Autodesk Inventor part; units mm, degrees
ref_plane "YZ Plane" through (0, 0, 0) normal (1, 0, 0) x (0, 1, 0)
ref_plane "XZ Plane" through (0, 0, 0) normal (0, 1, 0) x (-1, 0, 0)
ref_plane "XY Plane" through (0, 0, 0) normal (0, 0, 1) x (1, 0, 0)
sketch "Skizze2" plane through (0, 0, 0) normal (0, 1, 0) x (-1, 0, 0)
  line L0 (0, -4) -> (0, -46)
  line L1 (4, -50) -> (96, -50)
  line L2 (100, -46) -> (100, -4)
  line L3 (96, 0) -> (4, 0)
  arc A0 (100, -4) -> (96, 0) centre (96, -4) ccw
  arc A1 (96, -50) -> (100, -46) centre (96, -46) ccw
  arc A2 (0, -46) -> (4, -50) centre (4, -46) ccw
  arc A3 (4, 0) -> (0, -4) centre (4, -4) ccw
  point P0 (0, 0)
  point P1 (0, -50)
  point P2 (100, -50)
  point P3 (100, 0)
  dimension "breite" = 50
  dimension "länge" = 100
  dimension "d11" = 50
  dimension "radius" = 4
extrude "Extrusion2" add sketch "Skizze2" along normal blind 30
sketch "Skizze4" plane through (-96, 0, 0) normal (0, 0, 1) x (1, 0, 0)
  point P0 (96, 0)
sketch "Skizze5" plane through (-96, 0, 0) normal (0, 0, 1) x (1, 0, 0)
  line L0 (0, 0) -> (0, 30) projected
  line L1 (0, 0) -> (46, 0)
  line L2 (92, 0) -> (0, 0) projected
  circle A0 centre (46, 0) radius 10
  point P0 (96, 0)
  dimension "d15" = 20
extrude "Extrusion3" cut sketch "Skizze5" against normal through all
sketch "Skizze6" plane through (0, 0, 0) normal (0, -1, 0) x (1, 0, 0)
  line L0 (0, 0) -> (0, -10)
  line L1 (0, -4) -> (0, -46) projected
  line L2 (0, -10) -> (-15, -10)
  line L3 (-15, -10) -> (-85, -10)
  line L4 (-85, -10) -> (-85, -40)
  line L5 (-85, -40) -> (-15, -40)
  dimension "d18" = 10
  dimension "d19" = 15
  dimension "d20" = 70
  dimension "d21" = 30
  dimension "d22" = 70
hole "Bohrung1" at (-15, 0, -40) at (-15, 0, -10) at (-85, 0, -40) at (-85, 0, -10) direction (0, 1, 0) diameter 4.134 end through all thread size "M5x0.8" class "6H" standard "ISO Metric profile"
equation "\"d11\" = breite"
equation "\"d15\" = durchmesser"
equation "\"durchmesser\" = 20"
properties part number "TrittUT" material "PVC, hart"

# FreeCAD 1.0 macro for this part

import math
import FreeCAD as App
import Part
import Sketcher
from FreeCAD import Vector
Q = App.Units.Quantity

doc = App.newDocument("Part")
body = doc.addObject("PartDesign::Body", "Body")

# Sketch on XZ plane
sketch1 = body.newObject("Sketcher::SketchObject", "Sketch")
sketch1.AttachmentSupport = (doc.getObject("XZ_Plane"), [""])
sketch1.MapMode = "FlatFace"
sketch1.addGeometry(Part.ArcOfCircle(Part.Circle(Vector(-4, -4, 0), Vector(0, 0, 1), 4), math.radians(0), math.radians(90)), False)
sketch1.addGeometry(Part.LineSegment(Vector(0, -4, 0), Vector(0, -46, 0)), False)
sketch1.addGeometry(Part.ArcOfCircle(Part.Circle(Vector(-4, -46, 0), Vector(0, 0, 1), 4), math.radians(-90), math.radians(0)), False)
sketch1.addGeometry(Part.LineSegment(Vector(-4, -50, 0), Vector(-96, -50, 0)), False)
sketch1.addGeometry(Part.ArcOfCircle(Part.Circle(Vector(-96, -46, 0), Vector(0, 0, 1), 4), math.radians(180), math.radians(270)), False)
sketch1.addGeometry(Part.LineSegment(Vector(-100, -46, 0), Vector(-100, -4, 0)), False)
sketch1.addGeometry(Part.ArcOfCircle(Part.Circle(Vector(-96, -4, 0), Vector(0, 0, 1), 4), math.radians(90), math.radians(180)), False)
sketch1.addGeometry(Part.LineSegment(Vector(-96, 0, 0), Vector(-4, 0, 0)), False)
sketch1.addConstraint(Sketcher.Constraint("Tangent", 0, 1, 1, 1))
sketch1.addConstraint(Sketcher.Constraint("Tangent", 1, 2, 2, 2))
sketch1.addConstraint(Sketcher.Constraint("Tangent", 2, 1, 3, 1))
sketch1.addConstraint(Sketcher.Constraint("Tangent", 3, 2, 4, 2))
sketch1.addConstraint(Sketcher.Constraint("Tangent", 4, 1, 5, 1))
sketch1.addConstraint(Sketcher.Constraint("Tangent", 5, 2, 6, 2))
sketch1.addConstraint(Sketcher.Constraint("Tangent", 6, 1, 7, 1))
sketch1.addConstraint(Sketcher.Constraint("Tangent", 7, 2, 0, 2))
sketch1.addConstraint(Sketcher.Constraint("Vertical", 1))
sketch1.addConstraint(Sketcher.Constraint("Horizontal", 3))
sketch1.addConstraint(Sketcher.Constraint("Vertical", 5))
sketch1.addConstraint(Sketcher.Constraint("Horizontal", 7))
sketch1.addConstraint(Sketcher.Constraint("Equal", 0, 2))
sketch1.addConstraint(Sketcher.Constraint("Equal", 2, 4))
sketch1.addConstraint(Sketcher.Constraint("Equal", 4, 6))
sketch1.addConstraint(Sketcher.Constraint("PointOnObject", 0, 1, -2))
sketch1.addConstraint(Sketcher.Constraint("PointOnObject", 6, 1, -1))
sketch1.addConstraint(Sketcher.Constraint("Radius", 0, Q("4 mm")))
sketch1.addConstraint(Sketcher.Constraint("DistanceY", 2, 1, -1, 1, Q("50 mm")))
sketch1.addConstraint(Sketcher.Constraint("DistanceX", 4, 1, -1, 1, Q("100 mm")))
pad1 = body.newObject("PartDesign::Pad", "Pad")
pad1.Profile = sketch1
pad1.Length = 30
pad1.Reversed = True

# Sketch on XY plane
sketch2 = body.newObject("Sketcher::SketchObject", "Sketch001")
sketch2.AttachmentSupport = (doc.getObject("XY_Plane"), [""])
sketch2.MapMode = "FlatFace"
sketch2.addGeometry(Part.Circle(Vector(-50, 0, 0), Vector(0, 0, 1), 10), False)
sketch2.addConstraint(Sketcher.Constraint("PointOnObject", 0, 3, -1))
sketch2.addConstraint(Sketcher.Constraint("Diameter", 0, Q("20 mm")))
sketch2.addConstraint(Sketcher.Constraint("DistanceX", 0, 3, -1, 1, Q("50 mm")))
pocket1 = body.newObject("PartDesign::Pocket", "Pocket")
pocket1.Profile = sketch2
pocket1.Type = "ThroughAll"

# Sketch on XZ plane
sketch3 = body.newObject("Sketcher::SketchObject", "Sketch002")
sketch3.AttachmentSupport = (doc.getObject("XZ_Plane"), [""])
sketch3.MapMode = "FlatFace"
sketch3.addGeometry(Part.Circle(Vector(-15, -40, 0), Vector(0, 0, 1), 2.1), False)
sketch3.addGeometry(Part.Circle(Vector(-15, -10, 0), Vector(0, 0, 1), 2.1), False)
sketch3.addGeometry(Part.Circle(Vector(-85, -40, 0), Vector(0, 0, 1), 2.1), False)
sketch3.addGeometry(Part.Circle(Vector(-85, -10, 0), Vector(0, 0, 1), 2.1), False)
sketch3.addConstraint(Sketcher.Constraint("Equal", 0, 1))
sketch3.addConstraint(Sketcher.Constraint("Equal", 1, 2))
sketch3.addConstraint(Sketcher.Constraint("Equal", 2, 3))
sketch3.addConstraint(Sketcher.Constraint("Horizontal", 0, 3, 2, 3))
sketch3.addConstraint(Sketcher.Constraint("Horizontal", 1, 3, 3, 3))
sketch3.addConstraint(Sketcher.Constraint("Vertical", 0, 3, 1, 3))
sketch3.addConstraint(Sketcher.Constraint("Vertical", 2, 3, 3, 3))
sketch3.addConstraint(Sketcher.Constraint("Diameter", 0, Q("4.134 mm")))
sketch3.addConstraint(Sketcher.Constraint("DistanceX", 0, 3, -1, 1, Q("15 mm")))
sketch3.addConstraint(Sketcher.Constraint("DistanceY", 0, 3, -1, 1, Q("40 mm")))
sketch3.addConstraint(Sketcher.Constraint("DistanceY", 1, 3, -1, 1, Q("10 mm")))
sketch3.addConstraint(Sketcher.Constraint("DistanceX", 2, 3, -1, 1, Q("85 mm")))
doc.recompute()
hole = body.newObject("PartDesign::Hole", "Hole")
hole.Profile = sketch3
hole.ThreadType = "None"
hole.Diameter = 4.134
hole.DepthType = "ThroughAll"

doc.recompute()
